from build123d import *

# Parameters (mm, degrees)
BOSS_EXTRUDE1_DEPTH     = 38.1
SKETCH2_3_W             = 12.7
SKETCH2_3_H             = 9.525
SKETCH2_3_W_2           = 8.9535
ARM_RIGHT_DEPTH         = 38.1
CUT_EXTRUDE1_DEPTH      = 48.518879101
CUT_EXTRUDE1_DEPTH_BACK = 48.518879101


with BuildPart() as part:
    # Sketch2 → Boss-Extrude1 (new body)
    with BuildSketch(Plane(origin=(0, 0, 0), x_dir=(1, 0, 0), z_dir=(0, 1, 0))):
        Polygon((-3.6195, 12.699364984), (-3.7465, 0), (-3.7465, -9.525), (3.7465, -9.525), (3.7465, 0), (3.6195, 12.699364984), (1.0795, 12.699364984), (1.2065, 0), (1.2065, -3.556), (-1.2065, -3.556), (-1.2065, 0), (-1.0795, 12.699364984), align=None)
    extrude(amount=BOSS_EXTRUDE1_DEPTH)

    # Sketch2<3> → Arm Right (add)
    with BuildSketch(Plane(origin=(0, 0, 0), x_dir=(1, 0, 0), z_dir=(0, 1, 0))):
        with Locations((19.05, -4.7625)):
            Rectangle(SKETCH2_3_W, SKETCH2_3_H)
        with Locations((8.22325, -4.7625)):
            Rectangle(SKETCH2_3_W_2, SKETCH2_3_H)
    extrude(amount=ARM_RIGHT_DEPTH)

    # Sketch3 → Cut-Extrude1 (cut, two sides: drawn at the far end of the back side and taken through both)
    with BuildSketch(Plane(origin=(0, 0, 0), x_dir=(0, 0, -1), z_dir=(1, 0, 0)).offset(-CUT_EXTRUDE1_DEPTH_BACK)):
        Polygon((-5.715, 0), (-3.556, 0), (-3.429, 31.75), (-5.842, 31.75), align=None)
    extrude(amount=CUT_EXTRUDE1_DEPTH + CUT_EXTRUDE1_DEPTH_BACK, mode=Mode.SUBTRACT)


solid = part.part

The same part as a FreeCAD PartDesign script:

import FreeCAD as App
import Part
import Sketcher

V = App.Vector
Q = App.Units.Quantity

doc = App.newDocument("Part")
body = doc.addObject("PartDesign::Body", "Body")

# Sketch on XZ plane
sketch1 = body.newObject("Sketcher::SketchObject", "Sketch")
sketch1.AttachmentSupport = (doc.getObject("XZ_Plane"), [""])
sketch1.MapMode = "FlatFace"
sketch1.addGeometry(Part.LineSegment(V(-3.6, -12.7, 0), V(-3.7, 0, 0)), False)
sketch1.addGeometry(Part.LineSegment(V(-3.7, 0, 0), V(-3.7, 9.5, 0)), False)
sketch1.addGeometry(Part.LineSegment(V(-3.7, 9.5, 0), V(3.7, 9.5, 0)), False)
sketch1.addGeometry(Part.LineSegment(V(3.7, 9.5, 0), V(3.7, 0, 0)), False)
sketch1.addGeometry(Part.LineSegment(V(3.7, 0, 0), V(3.6, -12.7, 0)), False)
sketch1.addGeometry(Part.LineSegment(V(3.6, -12.7, 0), V(1.1, -12.7, 0)), False)
sketch1.addGeometry(Part.LineSegment(V(1.1, -12.7, 0), V(1.2, 0, 0)), False)
sketch1.addGeometry(Part.LineSegment(V(1.2, 0, 0), V(1.2, 3.6, 0)), False)
sketch1.addGeometry(Part.LineSegment(V(1.2, 3.6, 0), V(-1.2, 3.6, 0)), False)
sketch1.addGeometry(Part.LineSegment(V(-1.2, 3.6, 0), V(-1.2, 0, 0)), False)
sketch1.addGeometry(Part.LineSegment(V(-1.2, 0, 0), V(-1.1, -12.7, 0)), False)
sketch1.addGeometry(Part.LineSegment(V(-1.1, -12.7, 0), V(-3.6, -12.7, 0)), False)
sketch1.addConstraint(Sketcher.Constraint("Coincident", 0, 2, 1, 1))
sketch1.addConstraint(Sketcher.Constraint("Coincident", 1, 2, 2, 1))
sketch1.addConstraint(Sketcher.Constraint("Coincident", 2, 2, 3, 1))
sketch1.addConstraint(Sketcher.Constraint("Coincident", 3, 2, 4, 1))
sketch1.addConstraint(Sketcher.Constraint("Coincident", 4, 2, 5, 1))
sketch1.addConstraint(Sketcher.Constraint("Coincident", 5, 2, 6, 1))
sketch1.addConstraint(Sketcher.Constraint("Coincident", 6, 2, 7, 1))
sketch1.addConstraint(Sketcher.Constraint("Coincident", 7, 2, 8, 1))
sketch1.addConstraint(Sketcher.Constraint("Coincident", 8, 2, 9, 1))
sketch1.addConstraint(Sketcher.Constraint("Coincident", 9, 2, 10, 1))
sketch1.addConstraint(Sketcher.Constraint("Coincident", 10, 2, 11, 1))
sketch1.addConstraint(Sketcher.Constraint("Coincident", 11, 2, 0, 1))
sketch1.addConstraint(Sketcher.Constraint("Vertical", 1))
sketch1.addConstraint(Sketcher.Constraint("Horizontal", 2))
sketch1.addConstraint(Sketcher.Constraint("Vertical", 3))
sketch1.addConstraint(Sketcher.Constraint("Horizontal", 5))
sketch1.addConstraint(Sketcher.Constraint("Vertical", 7))
sketch1.addConstraint(Sketcher.Constraint("Horizontal", 8))
sketch1.addConstraint(Sketcher.Constraint("Vertical", 9))
sketch1.addConstraint(Sketcher.Constraint("Horizontal", 11))
sketch1.addConstraint(Sketcher.Constraint("Symmetric", 0, 2, 3, 2, -1, 1))
sketch1.addConstraint(Sketcher.Constraint("Symmetric", 6, 2, 9, 2, -1, 1))
sketch1.addConstraint(Sketcher.Constraint("Symmetric", 5, 2, 10, 2, -2))
sketch1.addConstraint(Sketcher.Constraint("PointOnObject", 0, 2, -1))
sketch1.addConstraint(Sketcher.Constraint("PointOnObject", 6, 2, -1))
sketch1.addConstraint(Sketcher.Constraint("Parallel", 4, 6))
sketch1.addConstraint(Sketcher.Constraint("Parallel", 0, 10))
sketch1.addConstraint(Sketcher.Constraint("DistanceX", 5, 2, 5, 1, Q("0.1 in")))
sketch1.addConstraint(Sketcher.Constraint("Distance", 0, Q("0.5 in")))
sketch1.addConstraint(Sketcher.Constraint("DistanceY", 7, 1, 7, 2, Q("0.14 in")))
sketch1.addConstraint(Sketcher.Constraint("DistanceX", 2, 1, 2, 2, Q("0.295 in")))
sketch1.addConstraint(Sketcher.Constraint("DistanceY", 1, 1, 1, 2, Q("0.375 in")))
sketch1.addConstraint(Sketcher.Constraint("DistanceX", 0, 2, 4, 2, Q("0.29 in")))
pad1 = body.newObject("PartDesign::Pad", "Pad")
pad1.Profile = sketch1
pad1.Length = Q("1.5 in")
pad1.Reversed = True

# Sketch on XZ plane
sketch2 = body.newObject("Sketcher::SketchObject", "Sketch001")
sketch2.AttachmentSupport = (doc.getObject("XZ_Plane"), [""])
sketch2.MapMode = "FlatFace"
sketch2.addGeometry(Part.LineSegment(V(25, 10, 0), V(25, 0, 0)), False)
sketch2.addGeometry(Part.LineSegment(V(25, 0, 0), V(4, 0, 0)), False)
sketch2.addGeometry(Part.LineSegment(V(4, 0, 0), V(4, 10, 0)), False)
sketch2.addGeometry(Part.LineSegment(V(4, 10, 0), V(25, 10, 0)), False)
sketch2.addConstraint(Sketcher.Constraint("Coincident", 0, 2, 1, 1))
sketch2.addConstraint(Sketcher.Constraint("Coincident", 1, 2, 2, 1))
sketch2.addConstraint(Sketcher.Constraint("Coincident", 2, 2, 3, 1))
sketch2.addConstraint(Sketcher.Constraint("Coincident", 3, 2, 0, 1))
sketch2.addConstraint(Sketcher.Constraint("Vertical", 0))
sketch2.addConstraint(Sketcher.Constraint("Horizontal", 1))
sketch2.addConstraint(Sketcher.Constraint("Vertical", 2))
sketch2.addConstraint(Sketcher.Constraint("Horizontal", 3))
sketch2.addConstraint(Sketcher.Constraint("PointOnObject", 0, 2, -1))
sketch2.addConstraint(Sketcher.Constraint("DistanceX", -1, 1, 0, 2, Q("1 in")))
sketch2.addConstraint(Sketcher.Constraint("DistanceY", 0, 2, 0, 1, Q("0.375 in")))
sketch2.addConstraint(Sketcher.Constraint("DistanceX", 1, 2, 1, 1, Q("0.8525 in")))
pad2 = body.newObject("PartDesign::Pad", "Pad001")
pad2.Profile = sketch2
pad2.Length = Q("1.5 in")
pad2.Reversed = True

# Sketch on YZ plane
sketch3 = body.newObject("Sketcher::SketchObject", "Sketch002")
sketch3.AttachmentSupport = (doc.getObject("YZ_Plane"), [""])
sketch3.MapMode = "FlatFace"
sketch3.addGeometry(Part.LineSegment(V(0, 5.7, 0), V(0, 3.6, 0)), False)
sketch3.addGeometry(Part.LineSegment(V(0, 3.6, 0), V(31.8, 3.4, 0)), False)
sketch3.addGeometry(Part.LineSegment(V(31.8, 3.4, 0), V(31.8, 5.8, 0)), False)
sketch3.addGeometry(Part.LineSegment(V(31.8, 5.8, 0), V(0, 5.7, 0)), False)
sketch3.addConstraint(Sketcher.Constraint("Coincident", 0, 2, 1, 1))
sketch3.addConstraint(Sketcher.Constraint("Coincident", 1, 2, 2, 1))
sketch3.addConstraint(Sketcher.Constraint("Coincident", 2, 2, 3, 1))
sketch3.addConstraint(Sketcher.Constraint("Coincident", 3, 2, 0, 1))
sketch3.addConstraint(Sketcher.Constraint("Vertical", 0))
sketch3.addConstraint(Sketcher.Constraint("Vertical", 2))
sketch3.addConstraint(Sketcher.Constraint("PointOnObject", 0, 2, -2))
sketch3.addConstraint(Sketcher.Constraint("Equal", 1, 3))
sketch3.addConstraint(Sketcher.Constraint("DistanceY", 0, 2, 0, 1, Q("0.085 in")))
sketch3.addConstraint(Sketcher.Constraint("DistanceY", 2, 1, 2, 2, Q("0.095 in")))
sketch3.addConstraint(Sketcher.Constraint("DistanceY", -1, 1, 0, 2, Q("0.14 in")))
sketch3.addConstraint(Sketcher.Constraint("DistanceX", -1, 1, 1, 2, Q("1.25 in")))
pocket1 = body.newObject("PartDesign::Pocket", "Pocket")
pocket1.Profile = sketch3
pocket1.Type = "ThroughAll"
pocket1.Midplane = True

doc.recompute()
